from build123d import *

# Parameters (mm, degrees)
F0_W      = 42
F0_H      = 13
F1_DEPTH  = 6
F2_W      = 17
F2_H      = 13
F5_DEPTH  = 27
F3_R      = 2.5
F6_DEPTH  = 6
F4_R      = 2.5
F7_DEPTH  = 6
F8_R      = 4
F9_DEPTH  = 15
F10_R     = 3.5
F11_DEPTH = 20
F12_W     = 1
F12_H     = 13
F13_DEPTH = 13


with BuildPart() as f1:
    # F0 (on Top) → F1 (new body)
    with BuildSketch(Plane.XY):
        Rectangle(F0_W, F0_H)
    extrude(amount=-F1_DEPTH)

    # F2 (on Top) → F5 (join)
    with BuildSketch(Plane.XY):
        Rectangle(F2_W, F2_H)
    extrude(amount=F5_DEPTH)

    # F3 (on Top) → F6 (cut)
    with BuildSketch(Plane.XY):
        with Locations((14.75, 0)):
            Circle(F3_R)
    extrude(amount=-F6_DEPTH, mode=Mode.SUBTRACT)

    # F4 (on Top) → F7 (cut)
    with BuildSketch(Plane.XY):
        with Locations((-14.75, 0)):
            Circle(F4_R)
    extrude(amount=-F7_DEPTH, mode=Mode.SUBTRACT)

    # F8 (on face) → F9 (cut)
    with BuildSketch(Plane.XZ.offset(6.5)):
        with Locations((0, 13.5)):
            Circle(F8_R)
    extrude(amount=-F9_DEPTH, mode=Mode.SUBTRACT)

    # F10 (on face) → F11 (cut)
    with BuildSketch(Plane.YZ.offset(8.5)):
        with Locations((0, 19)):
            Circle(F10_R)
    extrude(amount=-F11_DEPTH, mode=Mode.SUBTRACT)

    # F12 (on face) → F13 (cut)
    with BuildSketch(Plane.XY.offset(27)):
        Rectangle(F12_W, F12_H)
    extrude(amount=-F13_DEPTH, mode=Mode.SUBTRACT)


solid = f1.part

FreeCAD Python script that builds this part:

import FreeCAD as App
import Part
import Sketcher
from FreeCAD import Vector
Q = App.Units.Quantity


def add_polygon(sketch, points):
    """Adds a closed chain of lines whose ends are joined by coincident constraints."""
    first, n = sketch.GeometryCount, len(points)
    for a, b in zip(points, points[1:] + points[:1]):
        sketch.addGeometry(Part.LineSegment(App.Vector(*a, 0), App.Vector(*b, 0)), False)
    for i in range(n):
        sketch.addConstraint(Sketcher.Constraint("Coincident", first + i, 2, first + (i + 1) % n, 1))

doc = App.newDocument("Part")
body = doc.addObject("PartDesign::Body", "Body")

sketch1 = body.newObject("Sketcher::SketchObject", "Sketch")
sketch1.AttachmentSupport = (doc.getObject("XY_Plane"), [""])
sketch1.MapMode = "FlatFace"
add_polygon(sketch1, [(-21, 6), (-21, -6), (21, -6), (21, 6)])
sketch1.addConstraint([
    Sketcher.Constraint("Vertical", 0),
    Sketcher.Constraint("Horizontal", 1),
    Sketcher.Constraint("Vertical", 2),
    Sketcher.Constraint("Horizontal", 3),
    Sketcher.Constraint("Symmetric", 0, 2, 2, 2, -1, 1),
    Sketcher.Constraint("DistanceX", 1, 1, 1, 2, Q("42 mm")),
    Sketcher.Constraint("DistanceY", 0, 2, 0, 1, Q("13 mm")),
])
pad1 = body.newObject("PartDesign::Pad", "Pad")
pad1.Profile = sketch1
pad1.Length = 6
pad1.Reversed = True

sketch2 = body.newObject("Sketcher::SketchObject", "Sketch001")
sketch2.AttachmentSupport = (doc.getObject("XY_Plane"), [""])
sketch2.MapMode = "FlatFace"
add_polygon(sketch2, [(-8, 6), (-8, -6), (8, -6), (8, 6)])
sketch2.addConstraint([
    Sketcher.Constraint("Vertical", 0),
    Sketcher.Constraint("Horizontal", 1),
    Sketcher.Constraint("Vertical", 2),
    Sketcher.Constraint("Horizontal", 3),
    Sketcher.Constraint("Symmetric", 0, 2, 2, 2, -1, 1),
    Sketcher.Constraint("DistanceX", 1, 1, 1, 2, Q("17 mm")),
    Sketcher.Constraint("DistanceY", 0, 2, 0, 1, Q("13 mm")),
])
pad2 = body.newObject("PartDesign::Pad", "Pad001")
pad2.Profile = sketch2
pad2.Length = 27

sketch3 = body.newObject("Sketcher::SketchObject", "Sketch002")
sketch3.AttachmentSupport = (doc.getObject("XY_Plane"), [""])
sketch3.MapMode = "FlatFace"
sketch3.addGeometry(Part.Circle(Vector(14.8, 0, 0), Vector(0, 0, 1), 2.5), False)
sketch3.addConstraint([
    Sketcher.Constraint("PointOnObject", 0, 3, -1),
    Sketcher.Constraint("Diameter", 0, Q("5 mm")),
    Sketcher.Constraint("DistanceX", -1, 1, 0, 3, Q("14.75 mm")),
])
pocket1 = body.newObject("PartDesign::Pocket", "Pocket")
pocket1.Profile = sketch3
pocket1.Length = 6

sketch4 = body.newObject("Sketcher::SketchObject", "Sketch003")
sketch4.AttachmentSupport = (doc.getObject("XY_Plane"), [""])
sketch4.MapMode = "FlatFace"
sketch4.addGeometry(Part.Circle(Vector(-14.8, 0, 0), Vector(0, 0, 1), 2.5), False)
sketch4.addConstraint([
    Sketcher.Constraint("PointOnObject", 0, 3, -1),
    Sketcher.Constraint("Diameter", 0, Q("5 mm")),
    Sketcher.Constraint("DistanceX", 0, 3, -1, 1, Q("14.75 mm")),
])
pocket2 = body.newObject("PartDesign::Pocket", "Pocket001")
pocket2.Profile = sketch4
pocket2.Length = 6

sketch5 = body.newObject("Sketcher::SketchObject", "Sketch004")
sketch5.AttachmentSupport = (doc.getObject("XZ_Plane"), [""])
sketch5.MapMode = "FlatFace"
sketch5.AttachmentOffset = App.Placement(Vector(0, 0, 6.5), App.Rotation())
sketch5.addGeometry(Part.Circle(Vector(0, 13.5, 0), Vector(0, 0, 1), 4), False)
sketch5.addConstraint([
    Sketcher.Constraint("PointOnObject", 0, 3, -2),
    Sketcher.Constraint("Diameter", 0, Q("8 mm")),
    Sketcher.Constraint("DistanceY", -1, 1, 0, 3, Q("13.5 mm")),
])
pocket3 = body.newObject("PartDesign::Pocket", "Pocket002")
pocket3.Profile = sketch5
pocket3.Length = 15

sketch6 = body.newObject("Sketcher::SketchObject", "Sketch005")
sketch6.AttachmentSupport = (doc.getObject("YZ_Plane"), [""])
sketch6.MapMode = "FlatFace"
sketch6.AttachmentOffset = App.Placement(Vector(0, 0, 8.5), App.Rotation())
sketch6.addGeometry(Part.Circle(Vector(0, 19, 0), Vector(0, 0, 1), 3.5), False)
sketch6.addConstraint([
    Sketcher.Constraint("PointOnObject", 0, 3, -2),
    Sketcher.Constraint("Diameter", 0, Q("7 mm")),
    Sketcher.Constraint("DistanceY", -1, 1, 0, 3, Q("19 mm")),
])
pocket4 = body.newObject("PartDesign::Pocket", "Pocket003")
pocket4.Profile = sketch6
pocket4.Length = 20

sketch7 = body.newObject("Sketcher::SketchObject", "Sketch006")
sketch7.AttachmentSupport = (doc.getObject("XY_Plane"), [""])
sketch7.MapMode = "FlatFace"
sketch7.AttachmentOffset = App.Placement(Vector(0, 0, 27), App.Rotation())
add_polygon(sketch7, [(-0.5, 6.5), (-0.5, -6.5), (0.5, -6.5), (0.5, 6.5)])
sketch7.addConstraint([
    Sketcher.Constraint("Vertical", 0),
    Sketcher.Constraint("Horizontal", 1),
    Sketcher.Constraint("Vertical", 2),
    Sketcher.Constraint("Horizontal", 3),
    Sketcher.Constraint("Symmetric", 0, 2, 2, 2, -1, 1),
    Sketcher.Constraint("DistanceX", 1, 1, 1, 2, Q("1 mm")),
    Sketcher.Constraint("DistanceY", 0, 2, 0, 1, Q("13 mm")),
])
pocket5 = body.newObject("PartDesign::Pocket", "Pocket004")
pocket5.Profile = sketch7
pocket5.Length = 13

doc.recompute()
